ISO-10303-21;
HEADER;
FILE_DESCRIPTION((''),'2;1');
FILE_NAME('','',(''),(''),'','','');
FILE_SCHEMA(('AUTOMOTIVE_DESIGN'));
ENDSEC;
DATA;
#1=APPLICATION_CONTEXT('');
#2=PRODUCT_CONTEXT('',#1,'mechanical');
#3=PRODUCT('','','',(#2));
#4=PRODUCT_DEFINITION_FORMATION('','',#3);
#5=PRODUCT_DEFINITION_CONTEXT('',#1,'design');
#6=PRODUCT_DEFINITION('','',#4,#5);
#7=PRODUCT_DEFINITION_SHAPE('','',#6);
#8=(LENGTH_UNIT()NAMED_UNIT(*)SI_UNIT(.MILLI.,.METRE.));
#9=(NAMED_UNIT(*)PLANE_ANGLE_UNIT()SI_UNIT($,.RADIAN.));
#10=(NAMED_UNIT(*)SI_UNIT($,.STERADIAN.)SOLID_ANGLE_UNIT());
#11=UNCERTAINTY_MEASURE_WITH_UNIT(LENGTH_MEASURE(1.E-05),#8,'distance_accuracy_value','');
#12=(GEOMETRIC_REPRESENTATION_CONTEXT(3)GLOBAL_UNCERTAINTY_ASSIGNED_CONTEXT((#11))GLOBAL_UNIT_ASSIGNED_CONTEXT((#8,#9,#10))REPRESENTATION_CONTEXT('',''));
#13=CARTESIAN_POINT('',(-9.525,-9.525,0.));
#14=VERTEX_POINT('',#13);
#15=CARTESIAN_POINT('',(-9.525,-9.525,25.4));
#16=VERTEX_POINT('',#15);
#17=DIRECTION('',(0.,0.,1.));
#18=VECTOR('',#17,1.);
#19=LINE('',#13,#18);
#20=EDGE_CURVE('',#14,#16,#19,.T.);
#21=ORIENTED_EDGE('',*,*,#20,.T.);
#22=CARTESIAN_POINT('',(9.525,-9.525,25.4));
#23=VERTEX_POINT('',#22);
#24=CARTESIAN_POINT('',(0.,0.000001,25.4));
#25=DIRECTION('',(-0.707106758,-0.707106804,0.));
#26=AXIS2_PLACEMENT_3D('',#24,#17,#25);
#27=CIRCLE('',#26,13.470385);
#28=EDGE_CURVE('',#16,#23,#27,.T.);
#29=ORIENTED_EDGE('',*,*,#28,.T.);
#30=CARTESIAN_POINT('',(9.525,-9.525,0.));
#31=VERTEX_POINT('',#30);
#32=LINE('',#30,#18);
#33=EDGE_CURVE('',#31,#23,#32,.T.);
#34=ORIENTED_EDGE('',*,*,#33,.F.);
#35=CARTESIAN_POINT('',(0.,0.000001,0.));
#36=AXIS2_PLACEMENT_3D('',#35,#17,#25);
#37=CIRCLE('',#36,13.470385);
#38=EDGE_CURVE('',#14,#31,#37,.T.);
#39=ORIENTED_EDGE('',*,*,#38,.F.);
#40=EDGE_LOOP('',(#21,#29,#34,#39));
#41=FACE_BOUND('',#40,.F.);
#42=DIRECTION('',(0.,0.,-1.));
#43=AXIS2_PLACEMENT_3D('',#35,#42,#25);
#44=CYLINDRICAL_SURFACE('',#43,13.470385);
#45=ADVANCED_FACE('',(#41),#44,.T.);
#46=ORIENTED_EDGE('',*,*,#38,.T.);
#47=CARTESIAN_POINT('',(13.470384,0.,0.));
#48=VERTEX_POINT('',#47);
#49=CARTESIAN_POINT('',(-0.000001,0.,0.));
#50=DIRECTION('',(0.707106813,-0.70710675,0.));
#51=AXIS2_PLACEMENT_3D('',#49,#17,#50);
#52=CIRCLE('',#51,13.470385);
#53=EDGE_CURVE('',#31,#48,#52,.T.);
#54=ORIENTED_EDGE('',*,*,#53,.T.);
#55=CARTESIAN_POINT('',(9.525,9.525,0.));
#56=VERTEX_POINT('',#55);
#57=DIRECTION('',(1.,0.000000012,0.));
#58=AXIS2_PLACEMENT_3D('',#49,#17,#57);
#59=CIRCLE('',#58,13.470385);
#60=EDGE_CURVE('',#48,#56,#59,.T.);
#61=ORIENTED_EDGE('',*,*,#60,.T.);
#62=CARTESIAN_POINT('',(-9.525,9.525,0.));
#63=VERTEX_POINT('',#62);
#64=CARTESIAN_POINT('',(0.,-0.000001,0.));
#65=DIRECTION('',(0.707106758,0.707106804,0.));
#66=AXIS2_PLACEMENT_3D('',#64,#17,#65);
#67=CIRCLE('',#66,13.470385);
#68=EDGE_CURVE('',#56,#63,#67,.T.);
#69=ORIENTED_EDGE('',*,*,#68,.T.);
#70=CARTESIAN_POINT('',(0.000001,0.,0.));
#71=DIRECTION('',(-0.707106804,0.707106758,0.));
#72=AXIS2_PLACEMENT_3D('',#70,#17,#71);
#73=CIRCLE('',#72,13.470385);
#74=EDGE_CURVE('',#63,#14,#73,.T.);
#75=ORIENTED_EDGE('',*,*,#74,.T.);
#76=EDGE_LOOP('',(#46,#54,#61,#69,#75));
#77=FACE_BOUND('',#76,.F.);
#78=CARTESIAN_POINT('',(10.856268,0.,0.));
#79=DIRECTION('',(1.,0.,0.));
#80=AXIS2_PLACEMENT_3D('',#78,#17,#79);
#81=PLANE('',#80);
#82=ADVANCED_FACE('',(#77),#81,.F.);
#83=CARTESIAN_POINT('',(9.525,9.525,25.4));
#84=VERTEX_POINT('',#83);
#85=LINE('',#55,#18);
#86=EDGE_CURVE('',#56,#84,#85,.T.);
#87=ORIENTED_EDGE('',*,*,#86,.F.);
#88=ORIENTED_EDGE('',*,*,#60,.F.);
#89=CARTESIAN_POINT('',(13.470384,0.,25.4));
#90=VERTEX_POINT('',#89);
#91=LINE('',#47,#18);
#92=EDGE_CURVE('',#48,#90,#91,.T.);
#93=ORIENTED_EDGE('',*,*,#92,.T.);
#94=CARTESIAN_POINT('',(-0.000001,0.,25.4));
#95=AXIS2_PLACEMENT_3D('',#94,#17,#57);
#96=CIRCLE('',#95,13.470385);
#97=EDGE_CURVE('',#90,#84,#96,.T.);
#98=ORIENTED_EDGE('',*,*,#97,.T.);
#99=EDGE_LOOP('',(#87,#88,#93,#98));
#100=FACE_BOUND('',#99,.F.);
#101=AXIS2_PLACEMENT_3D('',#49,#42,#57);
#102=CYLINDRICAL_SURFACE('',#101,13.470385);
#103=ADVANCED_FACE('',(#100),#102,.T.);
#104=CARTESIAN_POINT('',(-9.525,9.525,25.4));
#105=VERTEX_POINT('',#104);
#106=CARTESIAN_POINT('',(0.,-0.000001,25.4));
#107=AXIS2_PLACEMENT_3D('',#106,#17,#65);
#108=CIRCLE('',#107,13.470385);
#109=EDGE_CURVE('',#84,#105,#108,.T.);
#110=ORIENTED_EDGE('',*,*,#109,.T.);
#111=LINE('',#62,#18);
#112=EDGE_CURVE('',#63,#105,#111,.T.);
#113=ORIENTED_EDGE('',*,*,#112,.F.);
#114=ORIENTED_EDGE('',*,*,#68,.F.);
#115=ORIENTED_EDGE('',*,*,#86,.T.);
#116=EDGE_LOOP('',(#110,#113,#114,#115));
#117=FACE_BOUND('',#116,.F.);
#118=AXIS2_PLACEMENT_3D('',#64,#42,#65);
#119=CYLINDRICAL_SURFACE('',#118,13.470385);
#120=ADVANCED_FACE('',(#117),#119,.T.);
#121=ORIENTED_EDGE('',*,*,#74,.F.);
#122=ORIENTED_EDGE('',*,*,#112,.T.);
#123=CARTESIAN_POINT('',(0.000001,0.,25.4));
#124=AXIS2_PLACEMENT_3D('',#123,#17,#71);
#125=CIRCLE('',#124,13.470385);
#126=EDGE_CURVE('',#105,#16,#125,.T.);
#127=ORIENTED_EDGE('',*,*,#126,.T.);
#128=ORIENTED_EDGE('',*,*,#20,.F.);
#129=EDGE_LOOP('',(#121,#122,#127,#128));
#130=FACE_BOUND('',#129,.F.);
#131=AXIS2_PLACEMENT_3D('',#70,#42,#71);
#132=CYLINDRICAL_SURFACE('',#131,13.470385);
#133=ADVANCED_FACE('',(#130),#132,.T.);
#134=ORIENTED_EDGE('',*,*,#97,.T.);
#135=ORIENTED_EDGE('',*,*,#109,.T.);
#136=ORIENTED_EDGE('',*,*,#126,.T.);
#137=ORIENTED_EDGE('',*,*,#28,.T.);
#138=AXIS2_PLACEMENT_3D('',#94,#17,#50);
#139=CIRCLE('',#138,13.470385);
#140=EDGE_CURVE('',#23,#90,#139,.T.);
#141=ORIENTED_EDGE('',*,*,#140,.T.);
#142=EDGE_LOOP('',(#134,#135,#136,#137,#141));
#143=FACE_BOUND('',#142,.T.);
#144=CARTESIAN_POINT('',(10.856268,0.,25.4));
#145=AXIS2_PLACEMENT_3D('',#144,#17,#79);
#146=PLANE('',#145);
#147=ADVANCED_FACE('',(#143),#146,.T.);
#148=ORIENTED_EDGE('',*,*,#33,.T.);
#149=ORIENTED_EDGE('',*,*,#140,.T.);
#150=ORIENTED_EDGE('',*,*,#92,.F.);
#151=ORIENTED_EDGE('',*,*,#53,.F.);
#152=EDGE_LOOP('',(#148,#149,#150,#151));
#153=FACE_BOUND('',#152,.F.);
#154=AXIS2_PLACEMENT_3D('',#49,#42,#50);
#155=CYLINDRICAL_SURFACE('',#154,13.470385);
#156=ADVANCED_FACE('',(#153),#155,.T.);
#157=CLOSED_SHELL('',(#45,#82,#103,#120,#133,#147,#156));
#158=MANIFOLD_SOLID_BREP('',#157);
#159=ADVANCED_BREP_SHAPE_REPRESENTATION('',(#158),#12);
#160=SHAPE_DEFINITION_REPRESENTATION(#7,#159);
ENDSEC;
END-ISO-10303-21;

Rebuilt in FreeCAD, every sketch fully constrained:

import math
import FreeCAD as App
import Part
import Sketcher

V = App.Vector
Q = App.Units.Quantity

doc = App.newDocument("Part")
body = doc.addObject("PartDesign::Body", "Body")

# Sketch on XY plane
sketch1 = body.newObject("Sketcher::SketchObject", "Sketch")
sketch1.AttachmentSupport = (doc.getObject("XY_Plane"), [""])
sketch1.MapMode = "FlatFace"
sketch1.addGeometry([
    Part.ArcOfCircle(Part.Circle(V(0, 0, 0), V(0, 0, 1), 13), math.radians(0), math.radians(45)),  # 0
    Part.ArcOfCircle(Part.Circle(V(0, 0, 0), V(0, 0, 1), 13), math.radians(45), math.radians(135)),  # 1
    Part.ArcOfCircle(Part.Circle(V(0, 0, 0), V(0, 0, 1), 13), math.radians(135), math.radians(225)),  # 2
    Part.ArcOfCircle(Part.Circle(V(0, 0, 0), V(0, 0, 1), 13), math.radians(-135), math.radians(-45)),  # 3
    Part.ArcOfCircle(Part.Circle(V(0, 0, 0), V(0, 0, 1), 13), math.radians(-45), math.radians(0)),  # 4
], False)
sketch1.addConstraint([
    Sketcher.Constraint("Tangent", 0, 2, 1, 1),
    Sketcher.Constraint("Tangent", 1, 2, 2, 1),
    Sketcher.Constraint("Tangent", 2, 2, 3, 1),
    Sketcher.Constraint("Tangent", 3, 2, 4, 1),
    Sketcher.Constraint("Tangent", 4, 2, 0, 1),
    Sketcher.Constraint("Coincident", 0, 3, -1, 1),
    Sketcher.Constraint("Coincident", 2, 3, -1, 1),
    Sketcher.Constraint("PointOnObject", 4, 2, -1),
    Sketcher.Constraint("Horizontal", 0, 2, 1, 2),
    Sketcher.Constraint("Horizontal", 2, 2, 3, 2),
    Sketcher.Constraint("Vertical", 1, 2, 2, 2),
    Sketcher.Constraint("DistanceX", -1, 1, 0, 2, Q("0.375 in")),
    Sketcher.Constraint("DistanceY", -1, 1, 0, 2, Q("0.375 in")),
])
pad1 = body.newObject("PartDesign::Pad", "Pad")
pad1.Profile = sketch1
pad1.Length = Q("1 in")

doc.recompute()
